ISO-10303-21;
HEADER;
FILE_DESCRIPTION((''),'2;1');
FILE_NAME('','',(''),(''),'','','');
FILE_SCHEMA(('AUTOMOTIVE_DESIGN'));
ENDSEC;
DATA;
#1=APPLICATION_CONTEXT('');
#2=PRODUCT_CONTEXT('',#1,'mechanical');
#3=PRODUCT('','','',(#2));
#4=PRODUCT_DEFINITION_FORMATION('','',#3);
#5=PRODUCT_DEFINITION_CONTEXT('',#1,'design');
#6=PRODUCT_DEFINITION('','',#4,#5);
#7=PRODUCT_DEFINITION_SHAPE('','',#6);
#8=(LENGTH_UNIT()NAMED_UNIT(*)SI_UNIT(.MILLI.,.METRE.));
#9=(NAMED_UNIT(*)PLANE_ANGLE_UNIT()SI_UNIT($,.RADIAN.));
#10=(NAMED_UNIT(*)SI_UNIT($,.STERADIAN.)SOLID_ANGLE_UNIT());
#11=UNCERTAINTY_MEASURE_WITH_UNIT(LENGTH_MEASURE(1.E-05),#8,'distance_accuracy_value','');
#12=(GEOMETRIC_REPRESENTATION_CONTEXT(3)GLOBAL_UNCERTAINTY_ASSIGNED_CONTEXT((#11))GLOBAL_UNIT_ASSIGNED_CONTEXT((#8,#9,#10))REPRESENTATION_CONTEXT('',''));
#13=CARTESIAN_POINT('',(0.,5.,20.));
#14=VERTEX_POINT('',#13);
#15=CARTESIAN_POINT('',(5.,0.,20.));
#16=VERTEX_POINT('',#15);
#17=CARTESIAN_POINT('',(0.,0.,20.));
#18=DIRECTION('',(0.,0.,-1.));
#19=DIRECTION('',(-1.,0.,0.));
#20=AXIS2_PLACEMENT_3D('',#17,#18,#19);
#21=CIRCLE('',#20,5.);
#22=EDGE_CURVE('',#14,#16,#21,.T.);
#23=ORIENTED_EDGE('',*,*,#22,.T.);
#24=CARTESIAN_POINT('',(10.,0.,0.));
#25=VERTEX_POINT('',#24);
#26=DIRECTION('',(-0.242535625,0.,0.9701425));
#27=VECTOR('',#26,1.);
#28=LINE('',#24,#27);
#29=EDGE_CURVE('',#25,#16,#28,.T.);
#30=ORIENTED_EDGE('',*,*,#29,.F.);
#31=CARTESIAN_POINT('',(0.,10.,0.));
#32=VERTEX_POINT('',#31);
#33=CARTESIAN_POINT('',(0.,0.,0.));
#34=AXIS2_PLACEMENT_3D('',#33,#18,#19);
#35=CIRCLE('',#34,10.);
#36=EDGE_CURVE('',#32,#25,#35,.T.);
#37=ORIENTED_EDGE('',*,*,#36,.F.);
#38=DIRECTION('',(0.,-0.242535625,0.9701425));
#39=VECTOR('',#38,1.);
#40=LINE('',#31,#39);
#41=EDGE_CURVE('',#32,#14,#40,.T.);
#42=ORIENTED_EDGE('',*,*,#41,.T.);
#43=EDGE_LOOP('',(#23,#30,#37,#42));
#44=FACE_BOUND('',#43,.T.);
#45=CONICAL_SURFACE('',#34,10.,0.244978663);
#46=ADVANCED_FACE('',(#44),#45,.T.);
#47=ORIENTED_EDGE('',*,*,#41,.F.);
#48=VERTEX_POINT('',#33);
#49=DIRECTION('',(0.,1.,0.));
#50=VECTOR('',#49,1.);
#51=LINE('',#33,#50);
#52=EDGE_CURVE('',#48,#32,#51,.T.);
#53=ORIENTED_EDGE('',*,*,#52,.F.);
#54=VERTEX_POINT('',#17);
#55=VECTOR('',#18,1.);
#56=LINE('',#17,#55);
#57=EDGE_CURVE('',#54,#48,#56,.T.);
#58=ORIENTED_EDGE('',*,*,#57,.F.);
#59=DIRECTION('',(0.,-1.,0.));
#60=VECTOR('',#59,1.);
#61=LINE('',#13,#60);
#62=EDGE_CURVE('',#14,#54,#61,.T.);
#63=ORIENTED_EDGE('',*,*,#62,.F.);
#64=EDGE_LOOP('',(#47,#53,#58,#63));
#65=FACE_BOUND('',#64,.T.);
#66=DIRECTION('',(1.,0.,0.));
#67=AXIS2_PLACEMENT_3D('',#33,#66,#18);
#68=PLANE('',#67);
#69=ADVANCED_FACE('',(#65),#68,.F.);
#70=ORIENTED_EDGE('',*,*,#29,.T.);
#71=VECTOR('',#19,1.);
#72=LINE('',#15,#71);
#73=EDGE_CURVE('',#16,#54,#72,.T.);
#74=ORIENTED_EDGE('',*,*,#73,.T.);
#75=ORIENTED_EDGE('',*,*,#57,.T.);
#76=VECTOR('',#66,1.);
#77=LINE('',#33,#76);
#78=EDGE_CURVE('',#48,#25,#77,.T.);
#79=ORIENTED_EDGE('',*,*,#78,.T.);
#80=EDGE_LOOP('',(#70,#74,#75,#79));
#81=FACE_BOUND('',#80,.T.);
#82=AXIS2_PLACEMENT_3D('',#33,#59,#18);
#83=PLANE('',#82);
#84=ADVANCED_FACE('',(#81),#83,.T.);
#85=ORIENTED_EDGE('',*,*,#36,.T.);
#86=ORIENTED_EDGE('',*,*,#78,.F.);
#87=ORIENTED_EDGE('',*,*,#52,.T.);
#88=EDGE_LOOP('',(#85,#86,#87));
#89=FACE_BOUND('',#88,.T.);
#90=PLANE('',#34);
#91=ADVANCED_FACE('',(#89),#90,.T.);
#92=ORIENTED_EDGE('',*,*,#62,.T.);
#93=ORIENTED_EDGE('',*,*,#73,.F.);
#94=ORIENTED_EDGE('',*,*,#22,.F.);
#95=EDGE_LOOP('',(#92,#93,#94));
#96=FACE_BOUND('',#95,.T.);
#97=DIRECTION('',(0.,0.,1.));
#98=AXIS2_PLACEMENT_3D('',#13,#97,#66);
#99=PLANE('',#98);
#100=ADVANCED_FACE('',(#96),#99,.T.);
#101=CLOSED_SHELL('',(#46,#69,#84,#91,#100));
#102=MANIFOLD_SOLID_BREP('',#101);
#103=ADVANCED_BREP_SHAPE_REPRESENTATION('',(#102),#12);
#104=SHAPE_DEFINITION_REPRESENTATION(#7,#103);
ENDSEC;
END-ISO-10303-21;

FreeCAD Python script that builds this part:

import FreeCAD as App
import Part
import Sketcher
from FreeCAD import Vector

doc = App.newDocument("Part")
body = doc.addObject("PartDesign::Body", "Body")

sketch1 = doc.addObject("Sketcher::SketchObject", "Sketch")
body.addObject(sketch1)
sketch1.AttachmentSupport = (doc.XZ_Plane, [""])
sketch1.MapMode = "FlatFace"
sketch1.addGeometry([
    Part.LineSegment(Vector(0, 0, 0), Vector(10, 0, 0)),
    Part.LineSegment(Vector(10, 0, 0), Vector(5, 20, 0)),
    Part.LineSegment(Vector(5, 20, 0), Vector(0, 20, 0)),
    Part.LineSegment(Vector(0, 20, 0), Vector(0, 0, 0)),
], False)
sketch1.addConstraint([
    Sketcher.Constraint("Coincident", 0, 2, 1, 1),
    Sketcher.Constraint("Coincident", 1, 2, 2, 1),
    Sketcher.Constraint("Coincident", 2, 2, 3, 1),
    Sketcher.Constraint("Coincident", 3, 2, 0, 1),
    Sketcher.Constraint("Horizontal", 0),
    Sketcher.Constraint("Horizontal", 2),
    Sketcher.Constraint("Vertical", 3),
    Sketcher.Constraint("Coincident", 3, 2, -1, 1),
    Sketcher.Constraint("DistanceX", 0, 1, 0, 2, 10.0),
    Sketcher.Constraint("DistanceX", 2, 2, 2, 1, 5.0),
    Sketcher.Constraint("DistanceY", 3, 2, 3, 1, 20.0),
])
revolution = doc.addObject("PartDesign::Revolution", "Revolution")
body.addObject(revolution)
revolution.Profile = sketch1
revolution.ReferenceAxis = (sketch1, ["V_Axis"])
revolution.Angle = 90

doc.recompute()
